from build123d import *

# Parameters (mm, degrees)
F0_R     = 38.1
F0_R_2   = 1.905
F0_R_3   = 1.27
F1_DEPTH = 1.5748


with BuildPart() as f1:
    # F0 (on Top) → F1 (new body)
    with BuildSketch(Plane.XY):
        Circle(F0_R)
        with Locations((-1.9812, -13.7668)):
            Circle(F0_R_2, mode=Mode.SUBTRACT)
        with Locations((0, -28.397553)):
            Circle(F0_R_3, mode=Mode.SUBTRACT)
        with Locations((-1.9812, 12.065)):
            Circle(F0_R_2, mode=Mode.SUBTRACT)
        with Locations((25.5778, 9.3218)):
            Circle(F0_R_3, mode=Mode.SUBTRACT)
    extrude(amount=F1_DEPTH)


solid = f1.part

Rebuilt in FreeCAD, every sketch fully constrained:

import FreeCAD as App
import Part
import Sketcher
Q = App.Units.Quantity

doc = App.newDocument("Part")
body = doc.addObject("PartDesign::Body", "Body")

sketch1 = doc.addObject("Sketcher::SketchObject", "Sketch")
body.addObject(sketch1)
sketch1.AttachmentSupport = (doc.XY_Plane, [""])
sketch1.MapMode = "FlatFace"
sketch1.addGeometry(Part.Circle(App.Vector(0, 0, 0), App.Vector(0, 0, 1), 38.1), False)
sketch1.addGeometry(Part.Circle(App.Vector(0, -28.4, 0), App.Vector(0, 0, 1), 1.3), False)
sketch1.addGeometry(Part.Circle(App.Vector(-2, -13.8, 0), App.Vector(0, 0, 1), 1.9), False)
sketch1.addGeometry(Part.Circle(App.Vector(-2, 12.1, 0), App.Vector(0, 0, 1), 1.9), False)
sketch1.addGeometry(Part.Circle(App.Vector(25.6, 9.3, 0), App.Vector(0, 0, 1), 1.3), False)
sketch1.addConstraint(Sketcher.Constraint("Coincident", 0, 3, -1, 1))
sketch1.addConstraint(Sketcher.Constraint("Equal", 2, 3))
sketch1.addConstraint(Sketcher.Constraint("Equal", 1, 4))
sketch1.addConstraint(Sketcher.Constraint("PointOnObject", 1, 3, -2))
sketch1.addConstraint(Sketcher.Constraint("Vertical", 2, 3, 3, 3))
sketch1.addConstraint(Sketcher.Constraint("Diameter", 0, Q("3 in")))
sketch1.addConstraint(Sketcher.Constraint("Diameter", 1, Q("0.1 in")))
sketch1.addConstraint(Sketcher.Constraint("Diameter", 2, Q("0.15 in")))
sketch1.addConstraint(Sketcher.Constraint("DistanceX", 2, 3, -1, 1, Q("0.078 in")))
sketch1.addConstraint(Sketcher.Constraint("DistanceY", 2, 3, -1, 1, Q("0.542 in")))
sketch1.addConstraint(Sketcher.Constraint("DistanceY", -1, 1, 3, 3, Q("0.475 in")))
sketch1.addConstraint(Sketcher.Constraint("DistanceX", -1, 1, 4, 3, Q("1.007 in")))
sketch1.addConstraint(Sketcher.Constraint("DistanceY", -1, 1, 4, 3, Q("0.367 in")))
sketch1.addConstraint(Sketcher.Constraint("DistanceY", 1, 3, -1, 1, 28.397553))
pad1 = doc.addObject("PartDesign::Pad", "Pad")
body.addObject(pad1)
pad1.Profile = sketch1
pad1.Length = Q("0.062 in")

doc.recompute()
